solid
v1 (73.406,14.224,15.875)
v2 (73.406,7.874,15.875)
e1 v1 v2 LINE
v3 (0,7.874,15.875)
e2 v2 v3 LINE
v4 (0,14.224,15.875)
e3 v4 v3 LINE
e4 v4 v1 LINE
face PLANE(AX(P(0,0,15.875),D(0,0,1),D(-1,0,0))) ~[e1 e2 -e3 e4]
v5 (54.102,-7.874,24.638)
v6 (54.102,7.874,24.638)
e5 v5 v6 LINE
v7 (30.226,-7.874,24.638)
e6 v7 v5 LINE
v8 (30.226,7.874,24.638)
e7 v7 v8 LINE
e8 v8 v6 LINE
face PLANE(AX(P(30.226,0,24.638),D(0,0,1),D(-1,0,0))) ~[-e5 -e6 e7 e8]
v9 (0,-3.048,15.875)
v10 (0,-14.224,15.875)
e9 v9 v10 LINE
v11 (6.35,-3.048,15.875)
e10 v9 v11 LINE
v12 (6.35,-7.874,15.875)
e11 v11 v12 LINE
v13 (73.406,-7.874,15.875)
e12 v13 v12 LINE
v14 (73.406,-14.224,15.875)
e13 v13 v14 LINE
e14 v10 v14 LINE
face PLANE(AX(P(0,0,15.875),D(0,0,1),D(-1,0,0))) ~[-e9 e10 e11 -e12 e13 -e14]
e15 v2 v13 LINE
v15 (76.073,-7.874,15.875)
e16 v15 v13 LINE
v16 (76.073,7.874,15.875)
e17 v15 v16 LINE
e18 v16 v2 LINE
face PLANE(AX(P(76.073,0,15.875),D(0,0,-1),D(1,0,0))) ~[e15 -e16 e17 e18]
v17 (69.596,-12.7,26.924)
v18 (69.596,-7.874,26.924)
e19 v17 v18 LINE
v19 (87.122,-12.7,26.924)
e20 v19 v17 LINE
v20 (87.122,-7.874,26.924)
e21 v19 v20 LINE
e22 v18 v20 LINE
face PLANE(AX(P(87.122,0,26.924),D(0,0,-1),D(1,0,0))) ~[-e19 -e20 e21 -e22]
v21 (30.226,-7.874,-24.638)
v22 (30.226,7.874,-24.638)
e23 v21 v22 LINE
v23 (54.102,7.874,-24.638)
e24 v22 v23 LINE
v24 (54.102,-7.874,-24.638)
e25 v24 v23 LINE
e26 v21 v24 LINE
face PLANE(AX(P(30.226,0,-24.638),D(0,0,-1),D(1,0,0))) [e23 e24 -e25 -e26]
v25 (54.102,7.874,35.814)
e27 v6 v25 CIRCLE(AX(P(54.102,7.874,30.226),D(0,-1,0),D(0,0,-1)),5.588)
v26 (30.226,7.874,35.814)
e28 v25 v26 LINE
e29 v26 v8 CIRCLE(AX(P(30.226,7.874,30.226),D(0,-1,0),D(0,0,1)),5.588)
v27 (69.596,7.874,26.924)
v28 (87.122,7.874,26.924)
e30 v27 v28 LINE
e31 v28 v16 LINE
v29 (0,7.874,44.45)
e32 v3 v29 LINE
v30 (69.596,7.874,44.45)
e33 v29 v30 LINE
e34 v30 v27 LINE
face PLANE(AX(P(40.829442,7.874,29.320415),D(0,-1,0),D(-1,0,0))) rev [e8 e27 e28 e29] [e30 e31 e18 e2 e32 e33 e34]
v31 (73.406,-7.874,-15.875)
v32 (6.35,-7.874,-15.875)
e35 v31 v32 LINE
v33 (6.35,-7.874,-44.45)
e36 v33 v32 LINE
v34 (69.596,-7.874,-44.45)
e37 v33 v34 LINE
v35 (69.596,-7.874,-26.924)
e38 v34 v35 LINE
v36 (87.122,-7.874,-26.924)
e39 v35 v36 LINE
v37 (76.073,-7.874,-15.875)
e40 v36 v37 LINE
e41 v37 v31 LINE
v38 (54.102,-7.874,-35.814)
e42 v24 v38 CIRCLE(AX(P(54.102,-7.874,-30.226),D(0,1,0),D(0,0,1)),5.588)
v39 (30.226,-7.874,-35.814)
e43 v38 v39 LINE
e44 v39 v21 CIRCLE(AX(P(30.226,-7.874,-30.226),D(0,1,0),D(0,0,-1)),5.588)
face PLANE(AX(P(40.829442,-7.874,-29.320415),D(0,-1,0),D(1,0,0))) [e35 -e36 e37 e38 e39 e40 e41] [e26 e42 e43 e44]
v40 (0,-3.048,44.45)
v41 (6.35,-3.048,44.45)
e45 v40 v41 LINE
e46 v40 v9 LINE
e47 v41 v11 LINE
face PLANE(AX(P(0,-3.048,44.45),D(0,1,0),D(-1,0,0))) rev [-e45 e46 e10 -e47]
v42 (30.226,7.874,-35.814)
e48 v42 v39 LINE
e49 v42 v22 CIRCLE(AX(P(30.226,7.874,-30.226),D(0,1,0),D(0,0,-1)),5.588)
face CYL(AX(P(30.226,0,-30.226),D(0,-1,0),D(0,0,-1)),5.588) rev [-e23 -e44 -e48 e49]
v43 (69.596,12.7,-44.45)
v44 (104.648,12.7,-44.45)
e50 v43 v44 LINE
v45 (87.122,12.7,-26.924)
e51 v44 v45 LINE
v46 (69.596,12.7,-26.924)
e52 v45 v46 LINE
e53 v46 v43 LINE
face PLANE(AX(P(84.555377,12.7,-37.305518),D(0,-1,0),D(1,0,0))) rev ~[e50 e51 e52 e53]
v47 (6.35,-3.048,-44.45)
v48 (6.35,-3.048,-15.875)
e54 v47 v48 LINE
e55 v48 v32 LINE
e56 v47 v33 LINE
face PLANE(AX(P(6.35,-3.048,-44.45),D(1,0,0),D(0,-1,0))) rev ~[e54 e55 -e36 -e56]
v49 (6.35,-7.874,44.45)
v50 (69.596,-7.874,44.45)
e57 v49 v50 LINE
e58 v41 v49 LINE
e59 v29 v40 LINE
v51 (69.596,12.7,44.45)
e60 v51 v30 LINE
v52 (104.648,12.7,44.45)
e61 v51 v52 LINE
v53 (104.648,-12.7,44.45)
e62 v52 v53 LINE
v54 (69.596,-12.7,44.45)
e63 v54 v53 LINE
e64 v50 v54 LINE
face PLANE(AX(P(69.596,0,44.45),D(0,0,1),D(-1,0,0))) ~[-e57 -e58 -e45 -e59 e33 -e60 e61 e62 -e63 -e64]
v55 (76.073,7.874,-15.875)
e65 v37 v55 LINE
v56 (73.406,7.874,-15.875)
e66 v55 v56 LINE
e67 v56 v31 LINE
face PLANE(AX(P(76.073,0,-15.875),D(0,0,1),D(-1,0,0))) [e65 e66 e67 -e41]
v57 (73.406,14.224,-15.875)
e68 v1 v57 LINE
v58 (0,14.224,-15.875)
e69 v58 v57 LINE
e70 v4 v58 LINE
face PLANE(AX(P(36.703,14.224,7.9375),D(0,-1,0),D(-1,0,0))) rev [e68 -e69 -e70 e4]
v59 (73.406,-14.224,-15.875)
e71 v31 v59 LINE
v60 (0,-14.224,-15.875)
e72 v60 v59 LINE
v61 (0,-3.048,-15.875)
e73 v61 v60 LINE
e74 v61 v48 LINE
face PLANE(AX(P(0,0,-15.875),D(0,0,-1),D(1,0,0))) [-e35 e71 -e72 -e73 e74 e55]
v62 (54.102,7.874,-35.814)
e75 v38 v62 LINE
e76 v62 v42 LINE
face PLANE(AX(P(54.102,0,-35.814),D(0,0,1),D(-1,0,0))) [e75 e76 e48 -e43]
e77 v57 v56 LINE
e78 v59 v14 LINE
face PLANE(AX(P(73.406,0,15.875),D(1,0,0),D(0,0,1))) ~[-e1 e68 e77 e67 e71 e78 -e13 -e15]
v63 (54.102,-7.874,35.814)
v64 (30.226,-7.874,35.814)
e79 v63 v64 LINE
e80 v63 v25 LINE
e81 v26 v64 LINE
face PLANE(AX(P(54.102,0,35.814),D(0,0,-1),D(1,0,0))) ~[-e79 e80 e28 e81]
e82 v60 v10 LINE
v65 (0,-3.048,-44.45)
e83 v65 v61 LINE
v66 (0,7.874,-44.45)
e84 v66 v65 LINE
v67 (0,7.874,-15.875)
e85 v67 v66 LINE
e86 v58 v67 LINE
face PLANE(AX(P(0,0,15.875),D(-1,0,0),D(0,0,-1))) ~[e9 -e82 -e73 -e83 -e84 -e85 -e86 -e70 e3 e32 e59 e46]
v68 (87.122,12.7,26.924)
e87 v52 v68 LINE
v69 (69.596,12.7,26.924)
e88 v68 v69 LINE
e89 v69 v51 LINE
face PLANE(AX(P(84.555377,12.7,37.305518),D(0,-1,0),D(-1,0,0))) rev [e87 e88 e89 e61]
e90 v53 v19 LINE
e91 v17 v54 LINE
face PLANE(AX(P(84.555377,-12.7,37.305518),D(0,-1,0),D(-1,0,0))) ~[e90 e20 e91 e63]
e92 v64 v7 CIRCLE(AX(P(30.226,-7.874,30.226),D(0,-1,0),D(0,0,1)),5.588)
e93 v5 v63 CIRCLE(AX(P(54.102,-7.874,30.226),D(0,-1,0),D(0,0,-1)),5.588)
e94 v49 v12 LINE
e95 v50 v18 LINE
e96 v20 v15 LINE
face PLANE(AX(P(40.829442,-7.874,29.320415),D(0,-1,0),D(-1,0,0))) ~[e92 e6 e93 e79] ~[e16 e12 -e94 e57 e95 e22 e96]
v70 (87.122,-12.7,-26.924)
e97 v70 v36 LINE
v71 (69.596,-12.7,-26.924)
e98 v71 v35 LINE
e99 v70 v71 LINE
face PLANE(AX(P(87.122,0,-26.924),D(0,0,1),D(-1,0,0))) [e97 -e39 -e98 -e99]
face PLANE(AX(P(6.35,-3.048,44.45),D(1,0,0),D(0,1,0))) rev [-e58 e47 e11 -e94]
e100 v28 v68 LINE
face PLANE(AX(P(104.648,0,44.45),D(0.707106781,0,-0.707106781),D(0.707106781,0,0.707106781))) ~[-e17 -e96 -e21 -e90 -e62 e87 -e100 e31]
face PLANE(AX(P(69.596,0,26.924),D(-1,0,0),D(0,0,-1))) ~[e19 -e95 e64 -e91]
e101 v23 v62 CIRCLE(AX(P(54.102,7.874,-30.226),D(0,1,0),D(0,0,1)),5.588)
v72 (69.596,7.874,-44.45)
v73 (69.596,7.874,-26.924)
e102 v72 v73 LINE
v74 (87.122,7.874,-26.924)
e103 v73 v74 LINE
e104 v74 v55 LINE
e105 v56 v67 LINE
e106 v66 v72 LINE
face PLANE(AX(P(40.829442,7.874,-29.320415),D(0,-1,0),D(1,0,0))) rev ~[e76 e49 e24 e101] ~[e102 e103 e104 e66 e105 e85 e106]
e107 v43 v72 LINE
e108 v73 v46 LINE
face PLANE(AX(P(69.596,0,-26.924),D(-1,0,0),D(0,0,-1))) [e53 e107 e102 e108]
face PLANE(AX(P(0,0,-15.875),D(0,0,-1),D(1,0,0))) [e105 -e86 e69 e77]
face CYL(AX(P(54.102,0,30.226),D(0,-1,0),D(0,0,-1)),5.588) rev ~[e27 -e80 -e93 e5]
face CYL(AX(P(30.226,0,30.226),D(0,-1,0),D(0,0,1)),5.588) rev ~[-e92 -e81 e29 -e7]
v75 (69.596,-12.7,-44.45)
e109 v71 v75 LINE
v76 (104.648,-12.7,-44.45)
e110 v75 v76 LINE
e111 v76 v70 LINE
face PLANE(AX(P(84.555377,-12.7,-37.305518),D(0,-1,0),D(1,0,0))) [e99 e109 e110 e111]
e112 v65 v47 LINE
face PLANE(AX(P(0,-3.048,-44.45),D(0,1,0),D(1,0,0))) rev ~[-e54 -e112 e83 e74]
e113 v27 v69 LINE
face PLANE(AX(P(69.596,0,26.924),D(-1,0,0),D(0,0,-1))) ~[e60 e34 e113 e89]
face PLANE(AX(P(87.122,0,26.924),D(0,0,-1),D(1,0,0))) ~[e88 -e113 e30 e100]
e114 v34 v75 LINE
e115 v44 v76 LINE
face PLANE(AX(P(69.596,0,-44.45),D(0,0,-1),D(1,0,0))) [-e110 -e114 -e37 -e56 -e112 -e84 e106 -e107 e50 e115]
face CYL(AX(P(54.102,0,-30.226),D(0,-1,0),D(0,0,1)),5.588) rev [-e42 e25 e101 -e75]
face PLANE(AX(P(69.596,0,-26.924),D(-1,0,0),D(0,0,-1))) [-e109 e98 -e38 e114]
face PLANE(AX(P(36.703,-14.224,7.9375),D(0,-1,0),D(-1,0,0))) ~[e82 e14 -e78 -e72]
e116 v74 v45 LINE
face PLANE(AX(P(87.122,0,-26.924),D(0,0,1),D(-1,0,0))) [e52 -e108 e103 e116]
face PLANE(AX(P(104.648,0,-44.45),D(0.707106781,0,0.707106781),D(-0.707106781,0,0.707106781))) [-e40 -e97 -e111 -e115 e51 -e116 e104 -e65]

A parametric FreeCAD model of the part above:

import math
import FreeCAD as App
import Part
import Sketcher
from FreeCAD import Vector
Q = App.Units.Quantity

doc = App.newDocument("Part")
params = doc.addObject("Spreadsheet::Sheet", "Params")
for row, (alias, value) in enumerate([
    ("sketch1_width", "2.89 in"),
    ("sketch1_height", "0.625 in"),
    ("pad1_length", "1.12 in"),
    ("sketch2_radius", "0.22 in"),
    ("sketch2_width", "2.74 in"),
    ("sketch2_width2", "0.69 in"),
    ("sketch2_width3", "0.94 in"),
    ("sketch2_width4", "2.995 in"),
    ("pad2_length", "0.62 in"),
    ("sketch3_width", "1.38 in"),
    ("pad3_length", "1 in"),
    ("sketch4_width", "0.25 in"),
    ("sketch4_height", "0.19 in"),
    ("pocket1_length", "1.125 in"),
], start=1):
    params.set(f"A{row}", alias)
    params.set(f"B{row}", "=" + value)
    params.setAlias(f"B{row}", alias)

body = doc.addObject("PartDesign::Body", "Body")

# Sketch on XZ plane
sketch1 = body.newObject("Sketcher::SketchObject", "Sketch")
sketch1.AttachmentSupport = (doc.getObject("XZ_Plane"), [""])
sketch1.MapMode = "FlatFace"
sketch1.addGeometry([
    Part.LineSegment(Vector(0, 0, 0), Vector(0, -16, 0)),
    Part.LineSegment(Vector(0, -16, 0), Vector(73, -16, 0)),
    Part.LineSegment(Vector(73, -16, 0), Vector(73, 0, 0)),
    Part.LineSegment(Vector(73, 0, 0), Vector(0, 0, 0)),
], False)
sketch1.addConstraint([
    Sketcher.Constraint("Coincident", 0, 2, 1, 1),
    Sketcher.Constraint("Coincident", 1, 2, 2, 1),
    Sketcher.Constraint("Coincident", 2, 2, 3, 1),
    Sketcher.Constraint("Coincident", 3, 2, 0, 1),
    Sketcher.Constraint("Vertical", 0),
    Sketcher.Constraint("Horizontal", 1),
    Sketcher.Constraint("Vertical", 2),
    Sketcher.Constraint("Horizontal", 3),
    Sketcher.Constraint("Coincident", 3, 2, -1, 1),
    Sketcher.Constraint("DistanceX", 1, 1, 1, 2, Q("2.89 in")),
    Sketcher.Constraint("DistanceY", 0, 2, 0, 1, Q("0.625 in")),
])
sketch1.setExpression("Constraints[9]", "Params.sketch1_width")
sketch1.setExpression("Constraints[10]", "Params.sketch1_height")
pad1 = body.newObject("PartDesign::Pad", "Pad")
pad1.Profile = sketch1
pad1.setExpression("Length", "Params.pad1_length")
pad1.Midplane = True

# Sketch on XZ plane
sketch2 = body.newObject("Sketcher::SketchObject", "Sketch001")
sketch2.AttachmentSupport = (doc.getObject("XZ_Plane"), [""])
sketch2.MapMode = "FlatFace"
sketch2.addGeometry([
    Part.LineSegment(Vector(0, -16, 0), Vector(0, -44, 0)),  # 0
    Part.LineSegment(Vector(0, -44, 0), Vector(70, -44, 0)),  # 1
    Part.LineSegment(Vector(70, -44, 0), Vector(70, -27, 0)),  # 2
    Part.LineSegment(Vector(70, -27, 0), Vector(87, -27, 0)),  # 3
    Part.LineSegment(Vector(87, -27, 0), Vector(76, -16, 0)),  # 4
    Part.LineSegment(Vector(76, -16, 0), Vector(0, -16, 0)),  # 5
    Part.LineSegment(Vector(54, -36, 0), Vector(30, -36, 0)),  # 6
    Part.ArcOfCircle(Part.Circle(Vector(30, -30, 0), Vector(0, 0, 1), 6), math.radians(90), math.radians(270)),  # 7
    Part.LineSegment(Vector(30, -25, 0), Vector(54, -25, 0)),  # 8
    Part.ArcOfCircle(Part.Circle(Vector(54, -30, 0), Vector(0, 0, 1), 6), math.radians(-90), math.radians(90)),  # 9
], False)
sketch2.addConstraint([
    Sketcher.Constraint("Coincident", 0, 2, 1, 1),
    Sketcher.Constraint("Coincident", 1, 2, 2, 1),
    Sketcher.Constraint("Coincident", 2, 2, 3, 1),
    Sketcher.Constraint("Coincident", 3, 2, 4, 1),
    Sketcher.Constraint("Coincident", 4, 2, 5, 1),
    Sketcher.Constraint("Coincident", 5, 2, 0, 1),
    Sketcher.Constraint("Tangent", 6, 2, 7, 2),
    Sketcher.Constraint("Tangent", 7, 1, 8, 1),
    Sketcher.Constraint("Tangent", 8, 2, 9, 2),
    Sketcher.Constraint("Tangent", 9, 1, 6, 1),
    Sketcher.Constraint("Vertical", 0),
    Sketcher.Constraint("Horizontal", 1),
    Sketcher.Constraint("Vertical", 2),
    Sketcher.Constraint("Horizontal", 3),
    Sketcher.Constraint("Horizontal", 5),
    Sketcher.Constraint("Horizontal", 6),
    Sketcher.Constraint("Horizontal", 8),
    Sketcher.Constraint("PointOnObject", 0, 2, -2),
    Sketcher.Constraint("Equal", 3, 2),
    Sketcher.Constraint("Radius", 7, Q("0.22 in")),
    Sketcher.Constraint("Angle", 4, Q("135 deg")),
    Sketcher.Constraint("DistanceX", 1, 1, 1, 2, Q("2.74 in")),
    Sketcher.Constraint("DistanceX", 3, 1, 3, 2, Q("0.69 in")),
    Sketcher.Constraint("DistanceX", 6, 2, 6, 1, Q("0.94 in")),
    Sketcher.Constraint("DistanceX", 9, 3, 3, 2, Q("1.3 in")),
    Sketcher.Constraint("DistanceX", 5, 2, 5, 1, Q("2.995 in")),
    Sketcher.Constraint("DistanceY", 7, 3, -1, 1, Q("1.19 in")),
    Sketcher.Constraint("DistanceY", 0, 2, -1, 1, Q("1.75 in")),
])
sketch2.setExpression("Constraints[19]", "Params.sketch2_radius")
sketch2.setExpression("Constraints[21]", "Params.sketch2_width")
sketch2.setExpression("Constraints[22]", "Params.sketch2_width2")
sketch2.setExpression("Constraints[23]", "Params.sketch2_width3")
sketch2.setExpression("Constraints[25]", "Params.sketch2_width4")
pad2 = body.newObject("PartDesign::Pad", "Pad001")
pad2.Profile = sketch2
pad2.setExpression("Length", "Params.pad2_length")
pad2.Midplane = True

# Sketch on XZ plane
sketch3 = body.newObject("Sketcher::SketchObject", "Sketch002")
sketch3.AttachmentSupport = (doc.getObject("XZ_Plane"), [""])
sketch3.MapMode = "FlatFace"
sketch3.addGeometry([
    Part.LineSegment(Vector(70, -27, 0), Vector(70, -44, 0)),
    Part.LineSegment(Vector(70, -44, 0), Vector(105, -44, 0)),
    Part.LineSegment(Vector(105, -44, 0), Vector(87, -27, 0)),
    Part.LineSegment(Vector(87, -27, 0), Vector(70, -27, 0)),
], False)
sketch3.addConstraint([
    Sketcher.Constraint("Coincident", 0, 2, 1, 1),
    Sketcher.Constraint("Coincident", 1, 2, 2, 1),
    Sketcher.Constraint("Coincident", 2, 2, 3, 1),
    Sketcher.Constraint("Coincident", 3, 2, 0, 1),
    Sketcher.Constraint("Vertical", 0),
    Sketcher.Constraint("Horizontal", 1),
    Sketcher.Constraint("Horizontal", 3),
    Sketcher.Constraint("Equal", 3, 0),
    Sketcher.Constraint("Angle", 2, Q("135 deg")),
    Sketcher.Constraint("DistanceX", 1, 1, 1, 2, Q("1.38 in")),
    Sketcher.Constraint("DistanceX", -1, 1, 0, 2, Q("2.74 in")),
    Sketcher.Constraint("DistanceY", 0, 2, -1, 1, Q("1.75 in")),
])
sketch3.setExpression("Constraints[9]", "Params.sketch3_width")
pad3 = body.newObject("PartDesign::Pad", "Pad002")
pad3.Profile = sketch3
pad3.setExpression("Length", "Params.pad3_length")
pad3.Midplane = True

# Sketch on XY plane
sketch4 = body.newObject("Sketcher::SketchObject", "Sketch003")
sketch4.AttachmentSupport = (doc.getObject("XY_Plane"), [""])
sketch4.MapMode = "FlatFace"
sketch4.AttachmentOffset = App.Placement(Vector(0, 0, -1.75 * 25.4), App.Rotation())
sketch4.addGeometry([
    Part.LineSegment(Vector(0, -7.9, 0), Vector(0, -3, 0)),
    Part.LineSegment(Vector(0, -3, 0), Vector(6.3, -3, 0)),
    Part.LineSegment(Vector(6.3, -3, 0), Vector(6.3, -7.9, 0)),
    Part.LineSegment(Vector(6.3, -7.9, 0), Vector(0, -7.9, 0)),
], False)
sketch4.addConstraint([
    Sketcher.Constraint("Coincident", 0, 2, 1, 1),
    Sketcher.Constraint("Coincident", 1, 2, 2, 1),
    Sketcher.Constraint("Coincident", 2, 2, 3, 1),
    Sketcher.Constraint("Coincident", 3, 2, 0, 1),
    Sketcher.Constraint("Vertical", 0),
    Sketcher.Constraint("Horizontal", 1),
    Sketcher.Constraint("Vertical", 2),
    Sketcher.Constraint("Horizontal", 3),
    Sketcher.Constraint("PointOnObject", 0, 2, -2),
    Sketcher.Constraint("DistanceX", 1, 1, 1, 2, Q("0.25 in")),
    Sketcher.Constraint("DistanceY", 0, 1, 0, 2, Q("0.19 in")),
    Sketcher.Constraint("DistanceY", 0, 2, -1, 1, Q("0.12 in")),
])
sketch4.setExpression("Constraints[9]", "Params.sketch4_width")
sketch4.setExpression("Constraints[10]", "Params.sketch4_height")
pocket1 = body.newObject("PartDesign::Pocket", "Pocket")
pocket1.Profile = sketch4
pocket1.setExpression("Length", "Params.pocket1_length")
pocket1.Reversed = True
body2 = doc.addObject("PartDesign::Body", "Body001")
doc.recompute()

body2.BaseFeature = body
doc.recompute()

mirroring = doc.addObject("Part::Mirroring", "Mirroring")
mirroring.Source = body
mirroring.Base = Vector(36.703, 0, 0)
mirroring.Normal = Vector(0, 0, 1)
body3 = doc.addObject("PartDesign::Body", "Body002")
body3.BaseFeature = mirroring
boolean = body2.newObject("PartDesign::Boolean", "Boolean")
boolean.Type = "Fuse"
boolean.addObjects([body3])
doc.recompute()
mirroring.Visibility = False

doc.recompute()
